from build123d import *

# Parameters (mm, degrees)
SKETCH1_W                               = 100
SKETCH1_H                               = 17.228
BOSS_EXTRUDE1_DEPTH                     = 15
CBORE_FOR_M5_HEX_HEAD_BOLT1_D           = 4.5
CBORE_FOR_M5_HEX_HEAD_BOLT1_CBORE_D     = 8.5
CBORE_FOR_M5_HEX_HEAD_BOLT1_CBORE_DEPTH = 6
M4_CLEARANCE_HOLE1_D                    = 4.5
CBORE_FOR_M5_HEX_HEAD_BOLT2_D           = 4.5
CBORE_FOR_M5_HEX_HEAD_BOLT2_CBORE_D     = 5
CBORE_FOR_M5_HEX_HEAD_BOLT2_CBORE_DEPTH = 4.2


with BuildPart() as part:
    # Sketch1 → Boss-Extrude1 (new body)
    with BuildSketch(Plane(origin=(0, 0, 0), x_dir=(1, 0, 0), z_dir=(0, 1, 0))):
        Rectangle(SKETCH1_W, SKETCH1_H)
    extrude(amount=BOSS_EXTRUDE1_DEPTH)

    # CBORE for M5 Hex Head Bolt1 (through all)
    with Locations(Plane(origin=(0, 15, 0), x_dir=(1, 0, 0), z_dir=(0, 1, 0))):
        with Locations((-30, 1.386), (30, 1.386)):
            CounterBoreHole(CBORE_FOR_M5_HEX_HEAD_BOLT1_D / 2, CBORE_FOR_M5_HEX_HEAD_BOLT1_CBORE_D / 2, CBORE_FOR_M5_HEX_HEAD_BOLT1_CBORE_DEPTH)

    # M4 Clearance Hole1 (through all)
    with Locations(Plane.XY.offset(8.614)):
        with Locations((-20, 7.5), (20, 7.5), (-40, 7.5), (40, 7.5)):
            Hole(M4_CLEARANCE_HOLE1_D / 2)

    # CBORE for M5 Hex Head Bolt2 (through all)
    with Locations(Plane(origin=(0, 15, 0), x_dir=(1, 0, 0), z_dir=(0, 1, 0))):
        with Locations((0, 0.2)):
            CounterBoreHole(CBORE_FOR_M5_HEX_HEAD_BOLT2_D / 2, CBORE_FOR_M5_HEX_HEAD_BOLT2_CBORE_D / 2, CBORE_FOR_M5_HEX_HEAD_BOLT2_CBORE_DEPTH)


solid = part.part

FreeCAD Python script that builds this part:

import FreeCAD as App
import Part
import Sketcher
from FreeCAD import Vector

doc = App.newDocument("Part")
body = doc.addObject("PartDesign::Body", "Body")

# Sketch on XZ plane
sketch1 = body.newObject("Sketcher::SketchObject", "Sketch")
sketch1.AttachmentSupport = (doc.getObject("XZ_Plane"), [""])
sketch1.MapMode = "FlatFace"
sketch1.addGeometry([
    Part.LineSegment(Vector(-50, -9, 0), Vector(-50, 9, 0)),
    Part.LineSegment(Vector(-50, 9, 0), Vector(50, 9, 0)),
    Part.LineSegment(Vector(50, 9, 0), Vector(50, -9, 0)),
    Part.LineSegment(Vector(50, -9, 0), Vector(-50, -9, 0)),
], False)
sketch1.addConstraint([
    Sketcher.Constraint("Coincident", 0, 2, 1, 1),
    Sketcher.Constraint("Coincident", 1, 2, 2, 1),
    Sketcher.Constraint("Coincident", 2, 2, 3, 1),
    Sketcher.Constraint("Coincident", 3, 2, 0, 1),
    Sketcher.Constraint("Vertical", 0),
    Sketcher.Constraint("Horizontal", 1),
    Sketcher.Constraint("Vertical", 2),
    Sketcher.Constraint("Horizontal", 3),
    Sketcher.Constraint("Symmetric", 0, 2, 2, 2, -1, 1),
    Sketcher.Constraint("DistanceX", 1, 1, 1, 2, 100.0),
    Sketcher.Constraint("DistanceY", 0, 1, 0, 2, 17.228),
])
pad1 = body.newObject("PartDesign::Pad", "Pad")
pad1.Profile = sketch1
pad1.Length = 15
pad1.Reversed = True

# Sketch on XZ plane
sketch2 = body.newObject("Sketcher::SketchObject", "Sketch001")
sketch2.AttachmentSupport = (doc.getObject("XZ_Plane"), [""])
sketch2.MapMode = "FlatFace"
sketch2.AttachmentOffset = App.Placement(Vector(0, 0, -15), App.Rotation())
sketch2.addGeometry([
    Part.Circle(Vector(-30, -1.4, 0), Vector(0, 0, 1), 2.2),
    Part.Circle(Vector(30, -1.4, 0), Vector(0, 0, 1), 2.2),
], False)
sketch2.addConstraint([
    Sketcher.Constraint("Equal", 0, 1),
    Sketcher.Constraint("Symmetric", 0, 3, 1, 3, -2),
    Sketcher.Constraint("Diameter", 0, 4.5),
    Sketcher.Constraint("DistanceX", 0, 3, -1, 1, 30.0),
    Sketcher.Constraint("DistanceY", 0, 3, -1, 1, 1.386),
])
doc.recompute()
hole = body.newObject("PartDesign::Hole", "Hole")
hole.Profile = sketch2
hole.ThreadType = "None"
hole.Diameter = 4.5
hole.DepthType = "ThroughAll"
hole.HoleCutType = "Counterbore"
hole.HoleCutDiameter = 8.5
hole.HoleCutDepth = 6
hole.Reversed = True

# Sketch on XY plane
sketch3 = body.newObject("Sketcher::SketchObject", "Sketch002")
sketch3.AttachmentSupport = (doc.getObject("XY_Plane"), [""])
sketch3.MapMode = "FlatFace"
sketch3.AttachmentOffset = App.Placement(Vector(0, 0, 8.614), App.Rotation())
sketch3.addGeometry([
    Part.Circle(Vector(-20, 7.5, 0), Vector(0, 0, 1), 2.2),
    Part.Circle(Vector(20, 7.5, 0), Vector(0, 0, 1), 2.2),
    Part.Circle(Vector(-40, 7.5, 0), Vector(0, 0, 1), 2.2),
    Part.Circle(Vector(40, 7.5, 0), Vector(0, 0, 1), 2.2),
], False)
sketch3.addConstraint([
    Sketcher.Constraint("Equal", 0, 1),
    Sketcher.Constraint("Equal", 1, 2),
    Sketcher.Constraint("Equal", 2, 3),
    Sketcher.Constraint("Symmetric", 0, 3, 1, 3, -2),
    Sketcher.Constraint("Symmetric", 2, 3, 3, 3, -2),
    Sketcher.Constraint("Horizontal", 1, 3, 2, 3),
    Sketcher.Constraint("Diameter", 0, 4.5),
    Sketcher.Constraint("DistanceX", 0, 3, -1, 1, 20.0),
    Sketcher.Constraint("DistanceX", 2, 3, -1, 1, 40.0),
    Sketcher.Constraint("DistanceY", -1, 1, 0, 3, 7.5),
])
doc.recompute()
hole2 = body.newObject("PartDesign::Hole", "Hole001")
hole2.Profile = sketch3
hole2.ThreadType = "None"
hole2.Diameter = 4.5
hole2.DepthType = "ThroughAll"

# Sketch on XZ plane
sketch4 = body.newObject("Sketcher::SketchObject", "Sketch003")
sketch4.AttachmentSupport = (doc.getObject("XZ_Plane"), [""])
sketch4.MapMode = "FlatFace"
sketch4.AttachmentOffset = App.Placement(Vector(0, 0, -15), App.Rotation())
sketch4.addGeometry(Part.Circle(Vector(0, -0.2, 0), Vector(0, 0, 1), 2.2), False)
sketch4.addConstraint([
    Sketcher.Constraint("PointOnObject", 0, 3, -2),
    Sketcher.Constraint("Diameter", 0, 4.5),
    Sketcher.Constraint("DistanceY", 0, 3, -1, 1, 0.2),
])
doc.recompute()
hole3 = body.newObject("PartDesign::Hole", "Hole002")
hole3.Profile = sketch4
hole3.ThreadType = "None"
hole3.Diameter = 4.5
hole3.DepthType = "ThroughAll"
hole3.HoleCutType = "Counterbore"
hole3.HoleCutDiameter = 5
hole3.HoleCutDepth = 4.2
hole3.Reversed = True

doc.recompute()
